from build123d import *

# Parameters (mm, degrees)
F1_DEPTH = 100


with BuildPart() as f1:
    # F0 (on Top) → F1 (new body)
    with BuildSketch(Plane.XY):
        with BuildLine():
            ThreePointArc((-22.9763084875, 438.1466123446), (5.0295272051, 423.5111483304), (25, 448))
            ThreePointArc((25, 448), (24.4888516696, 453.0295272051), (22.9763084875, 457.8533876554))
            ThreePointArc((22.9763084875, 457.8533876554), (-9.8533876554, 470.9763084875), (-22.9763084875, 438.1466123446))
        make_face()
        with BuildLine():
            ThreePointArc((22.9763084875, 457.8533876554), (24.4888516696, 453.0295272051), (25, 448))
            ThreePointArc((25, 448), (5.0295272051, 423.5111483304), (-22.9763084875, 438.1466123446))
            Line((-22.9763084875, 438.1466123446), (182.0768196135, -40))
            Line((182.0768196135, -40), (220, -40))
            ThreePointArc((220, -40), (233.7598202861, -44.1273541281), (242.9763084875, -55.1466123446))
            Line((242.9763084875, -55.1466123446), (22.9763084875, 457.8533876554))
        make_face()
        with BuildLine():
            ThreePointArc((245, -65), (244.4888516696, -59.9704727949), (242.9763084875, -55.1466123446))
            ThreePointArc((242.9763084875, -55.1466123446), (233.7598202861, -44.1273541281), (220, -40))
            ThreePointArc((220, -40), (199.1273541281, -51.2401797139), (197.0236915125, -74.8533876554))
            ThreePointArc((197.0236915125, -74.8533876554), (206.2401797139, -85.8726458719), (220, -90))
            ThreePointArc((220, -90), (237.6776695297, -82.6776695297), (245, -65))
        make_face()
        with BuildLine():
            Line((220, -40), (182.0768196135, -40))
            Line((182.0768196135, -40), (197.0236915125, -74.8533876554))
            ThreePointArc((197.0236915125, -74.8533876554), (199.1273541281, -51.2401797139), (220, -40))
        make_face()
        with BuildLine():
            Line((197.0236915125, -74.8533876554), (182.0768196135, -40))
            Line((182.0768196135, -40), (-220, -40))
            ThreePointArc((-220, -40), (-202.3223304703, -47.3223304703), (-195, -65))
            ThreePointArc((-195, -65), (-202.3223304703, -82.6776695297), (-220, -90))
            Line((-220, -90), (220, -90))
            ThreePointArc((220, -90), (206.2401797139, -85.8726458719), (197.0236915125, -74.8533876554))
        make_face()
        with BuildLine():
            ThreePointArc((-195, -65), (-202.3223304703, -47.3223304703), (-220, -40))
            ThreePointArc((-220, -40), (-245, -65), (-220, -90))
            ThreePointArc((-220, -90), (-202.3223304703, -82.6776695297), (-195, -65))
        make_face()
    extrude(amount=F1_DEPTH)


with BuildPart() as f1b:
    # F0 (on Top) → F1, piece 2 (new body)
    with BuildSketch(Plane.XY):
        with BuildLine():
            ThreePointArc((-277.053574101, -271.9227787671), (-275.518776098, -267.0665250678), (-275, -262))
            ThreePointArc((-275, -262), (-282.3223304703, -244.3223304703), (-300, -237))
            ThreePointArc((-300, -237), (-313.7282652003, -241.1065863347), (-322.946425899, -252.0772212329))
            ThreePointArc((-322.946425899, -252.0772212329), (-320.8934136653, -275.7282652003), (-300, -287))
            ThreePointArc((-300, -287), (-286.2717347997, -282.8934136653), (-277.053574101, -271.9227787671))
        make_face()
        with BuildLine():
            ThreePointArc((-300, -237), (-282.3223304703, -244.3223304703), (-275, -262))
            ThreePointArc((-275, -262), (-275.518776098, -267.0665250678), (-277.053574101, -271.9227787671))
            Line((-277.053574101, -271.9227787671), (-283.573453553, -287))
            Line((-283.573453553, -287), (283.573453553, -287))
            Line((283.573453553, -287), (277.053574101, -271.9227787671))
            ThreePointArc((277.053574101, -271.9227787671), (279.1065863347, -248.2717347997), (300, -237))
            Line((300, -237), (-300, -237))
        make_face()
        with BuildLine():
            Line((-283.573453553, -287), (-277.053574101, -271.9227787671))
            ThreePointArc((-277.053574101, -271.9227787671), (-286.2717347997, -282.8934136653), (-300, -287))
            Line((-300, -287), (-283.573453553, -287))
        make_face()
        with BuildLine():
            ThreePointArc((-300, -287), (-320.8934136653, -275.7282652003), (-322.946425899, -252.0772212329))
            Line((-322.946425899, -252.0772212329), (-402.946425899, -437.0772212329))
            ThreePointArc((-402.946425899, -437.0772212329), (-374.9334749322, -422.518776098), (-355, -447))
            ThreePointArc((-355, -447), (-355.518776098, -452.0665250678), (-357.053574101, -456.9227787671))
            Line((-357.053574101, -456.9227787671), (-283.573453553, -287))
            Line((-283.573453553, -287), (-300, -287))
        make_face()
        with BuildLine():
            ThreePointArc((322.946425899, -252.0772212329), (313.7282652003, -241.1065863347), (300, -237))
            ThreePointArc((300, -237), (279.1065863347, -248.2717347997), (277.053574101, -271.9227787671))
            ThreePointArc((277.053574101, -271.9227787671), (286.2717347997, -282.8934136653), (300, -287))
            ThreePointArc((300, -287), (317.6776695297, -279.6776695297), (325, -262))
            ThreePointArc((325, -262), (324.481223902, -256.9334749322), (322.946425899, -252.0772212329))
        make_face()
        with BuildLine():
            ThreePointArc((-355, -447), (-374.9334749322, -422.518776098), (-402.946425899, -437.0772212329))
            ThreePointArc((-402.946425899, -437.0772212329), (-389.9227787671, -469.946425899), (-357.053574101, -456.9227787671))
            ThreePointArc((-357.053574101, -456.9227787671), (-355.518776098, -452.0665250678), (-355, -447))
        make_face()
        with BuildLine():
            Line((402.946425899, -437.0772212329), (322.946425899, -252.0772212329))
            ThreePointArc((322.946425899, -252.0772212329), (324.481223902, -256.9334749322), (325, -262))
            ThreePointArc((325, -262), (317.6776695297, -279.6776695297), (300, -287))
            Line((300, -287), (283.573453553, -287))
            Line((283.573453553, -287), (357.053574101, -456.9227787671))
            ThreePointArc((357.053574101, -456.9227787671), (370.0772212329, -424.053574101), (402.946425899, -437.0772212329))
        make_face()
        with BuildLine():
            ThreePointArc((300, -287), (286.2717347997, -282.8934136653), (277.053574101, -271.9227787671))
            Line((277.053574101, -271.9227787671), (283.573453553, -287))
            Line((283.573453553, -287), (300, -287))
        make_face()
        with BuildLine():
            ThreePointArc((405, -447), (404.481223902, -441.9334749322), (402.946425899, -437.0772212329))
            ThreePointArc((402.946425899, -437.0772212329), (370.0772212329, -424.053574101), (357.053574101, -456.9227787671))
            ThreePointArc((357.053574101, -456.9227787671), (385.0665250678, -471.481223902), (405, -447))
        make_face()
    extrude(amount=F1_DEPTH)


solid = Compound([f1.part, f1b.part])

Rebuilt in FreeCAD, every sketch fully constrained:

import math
import FreeCAD as App
import Part
import Sketcher

V = App.Vector

doc = App.newDocument("Part")
body = doc.addObject("PartDesign::Body", "Body")

# Sketch on XY plane
sketch1 = doc.addObject("Sketcher::SketchObject", "Sketch")
body.addObject(sketch1)
sketch1.AttachmentSupport = (doc.XY_Plane, [""])
sketch1.MapMode = "FlatFace"
sketch1.addGeometry(Part.ArcOfCircle(Part.Circle(V(0, 448, 0), V(0, 0, 1), 25), math.radians(23), math.radians(203)), False)
sketch1.addGeometry(Part.LineSegment(V(-23, 438, 0), V(182, -40, 0)), False)
sketch1.addGeometry(Part.LineSegment(V(182, -40, 0), V(-220, -40, 0)), False)
sketch1.addGeometry(Part.ArcOfCircle(Part.Circle(V(-220, -65, 0), V(0, 0, 1), 25), math.radians(90), math.radians(270)), False)
sketch1.addGeometry(Part.LineSegment(V(-220, -90, 0), V(220, -90, 0)), False)
sketch1.addGeometry(Part.ArcOfCircle(Part.Circle(V(220, -65, 0), V(0, 0, 1), 25), math.radians(-90), math.radians(0)), False)
sketch1.addGeometry(Part.ArcOfCircle(Part.Circle(V(220, -65, 0), V(0, 0, 1), 25), math.radians(0), math.radians(23)), False)
sketch1.addGeometry(Part.LineSegment(V(243, -55, 0), V(23, 458, 0)), False)
sketch1.addConstraint(Sketcher.Constraint("Tangent", 0, 2, 1, 1))
sketch1.addConstraint(Sketcher.Constraint("Coincident", 1, 2, 2, 1))
sketch1.addConstraint(Sketcher.Constraint("Tangent", 2, 2, 3, 1))
sketch1.addConstraint(Sketcher.Constraint("Tangent", 3, 2, 4, 1))
sketch1.addConstraint(Sketcher.Constraint("Tangent", 4, 2, 5, 1))
sketch1.addConstraint(Sketcher.Constraint("Tangent", 5, 2, 6, 1))
sketch1.addConstraint(Sketcher.Constraint("Tangent", 6, 2, 7, 1))
sketch1.addConstraint(Sketcher.Constraint("Tangent", 7, 2, 0, 1))
sketch1.addConstraint(Sketcher.Constraint("Horizontal", 2))
sketch1.addConstraint(Sketcher.Constraint("Horizontal", 4))
sketch1.addConstraint(Sketcher.Constraint("Equal", 0, 3))
sketch1.addConstraint(Sketcher.Constraint("Equal", 3, 5))
sketch1.addConstraint(Sketcher.Constraint("Equal", 5, 6))
sketch1.addConstraint(Sketcher.Constraint("PointOnObject", 0, 3, -2))
sketch1.addConstraint(Sketcher.Constraint("Parallel", 1, 7))
sketch1.addConstraint(Sketcher.Constraint("Horizontal", 6, 3, 5, 2))
sketch1.addConstraint(Sketcher.Constraint("Radius", 0, 25.0))
sketch1.addConstraint(Sketcher.Constraint("DistanceX", 4, 1, 4, 2, 440.0))
sketch1.addConstraint(Sketcher.Constraint("DistanceY", -1, 1, 0, 3, 448.0))
sketch1.addConstraint(Sketcher.Constraint("DistanceX", 3, 3, -1, 1, 220.0))
sketch1.addConstraint(Sketcher.Constraint("DistanceY", 3, 3, -1, 1, 65.0))
pad1 = doc.addObject("PartDesign::Pad", "Pad")
body.addObject(pad1)
pad1.Profile = sketch1
pad1.Length = 100
body2 = doc.addObject("PartDesign::Body", "Body001")

# Sketch on XY plane
sketch2 = doc.addObject("Sketcher::SketchObject", "Sketch001")
body2.addObject(sketch2)
sketch2.AttachmentSupport = (doc.getObject("XY_Plane001"), [""])
sketch2.MapMode = "FlatFace"
sketch2.addGeometry(Part.LineSegment(V(-284, -287, 0), V(284, -287, 0)), False)
sketch2.addGeometry(Part.LineSegment(V(284, -287, 0), V(357, -457, 0)), False)
sketch2.addGeometry(Part.ArcOfCircle(Part.Circle(V(380, -447, 0), V(0, 0, 1), 25), math.radians(-157), math.radians(0)), False)
sketch2.addGeometry(Part.ArcOfCircle(Part.Circle(V(380, -447, 0), V(0, 0, 1), 25), math.radians(0), math.radians(23)), False)
sketch2.addGeometry(Part.LineSegment(V(403, -437, 0), V(323, -252, 0)), False)
sketch2.addGeometry(Part.ArcOfCircle(Part.Circle(V(300, -262, 0), V(0, 0, 1), 25), math.radians(23), math.radians(90)), False)
sketch2.addGeometry(Part.LineSegment(V(300, -237, 0), V(-300, -237, 0)), False)
sketch2.addGeometry(Part.ArcOfCircle(Part.Circle(V(-300, -262, 0), V(0, 0, 1), 25), math.radians(90), math.radians(157)), False)
sketch2.addGeometry(Part.LineSegment(V(-323, -252, 0), V(-403, -437, 0)), False)
sketch2.addGeometry(Part.ArcOfCircle(Part.Circle(V(-380, -447, 0), V(0, 0, 1), 25), math.radians(157), math.radians(337)), False)
sketch2.addGeometry(Part.LineSegment(V(-357, -457, 0), V(-284, -287, 0)), False)
sketch2.addConstraint(Sketcher.Constraint("Coincident", 0, 2, 1, 1))
sketch2.addConstraint(Sketcher.Constraint("Tangent", 1, 2, 2, 1))
sketch2.addConstraint(Sketcher.Constraint("Tangent", 2, 2, 3, 1))
sketch2.addConstraint(Sketcher.Constraint("Tangent", 3, 2, 4, 1))
sketch2.addConstraint(Sketcher.Constraint("Tangent", 4, 2, 5, 1))
sketch2.addConstraint(Sketcher.Constraint("Tangent", 5, 2, 6, 1))
sketch2.addConstraint(Sketcher.Constraint("Tangent", 6, 2, 7, 1))
sketch2.addConstraint(Sketcher.Constraint("Tangent", 7, 2, 8, 1))
sketch2.addConstraint(Sketcher.Constraint("Tangent", 8, 2, 9, 1))
sketch2.addConstraint(Sketcher.Constraint("Tangent", 9, 2, 10, 1))
sketch2.addConstraint(Sketcher.Constraint("Coincident", 10, 2, 0, 1))
sketch2.addConstraint(Sketcher.Constraint("Horizontal", 0))
sketch2.addConstraint(Sketcher.Constraint("Horizontal", 6))
sketch2.addConstraint(Sketcher.Constraint("Equal", 2, 3))
sketch2.addConstraint(Sketcher.Constraint("Equal", 3, 5))
sketch2.addConstraint(Sketcher.Constraint("Equal", 5, 7))
sketch2.addConstraint(Sketcher.Constraint("Equal", 7, 9))
sketch2.addConstraint(Sketcher.Constraint("Symmetric", 2, 3, 9, 3, -2))
sketch2.addConstraint(Sketcher.Constraint("Parallel", 1, 4))
sketch2.addConstraint(Sketcher.Constraint("Parallel", 8, 10))
sketch2.addConstraint(Sketcher.Constraint("Horizontal", 9, 3, 2, 2))
sketch2.addConstraint(Sketcher.Constraint("Horizontal", 4, 2, 7, 2))
sketch2.addConstraint(Sketcher.Constraint("Radius", 2, 25.0))
sketch2.addConstraint(Sketcher.Constraint("DistanceX", 6, 2, 6, 1, 600.0))
sketch2.addConstraint(Sketcher.Constraint("DistanceX", -1, 1, 2, 3, 380.0))
sketch2.addConstraint(Sketcher.Constraint("DistanceY", 2, 3, -1, 1, 447.0))
sketch2.addConstraint(Sketcher.Constraint("DistanceY", 5, 3, -1, 1, 262.0))
sketch2.addConstraint(Sketcher.Constraint("DistanceY", 0, 2, -1, 1, 287.0))
pad2 = doc.addObject("PartDesign::Pad", "Pad001")
body2.addObject(pad2)
pad2.Profile = sketch2
pad2.Length = 100

doc.recompute()
